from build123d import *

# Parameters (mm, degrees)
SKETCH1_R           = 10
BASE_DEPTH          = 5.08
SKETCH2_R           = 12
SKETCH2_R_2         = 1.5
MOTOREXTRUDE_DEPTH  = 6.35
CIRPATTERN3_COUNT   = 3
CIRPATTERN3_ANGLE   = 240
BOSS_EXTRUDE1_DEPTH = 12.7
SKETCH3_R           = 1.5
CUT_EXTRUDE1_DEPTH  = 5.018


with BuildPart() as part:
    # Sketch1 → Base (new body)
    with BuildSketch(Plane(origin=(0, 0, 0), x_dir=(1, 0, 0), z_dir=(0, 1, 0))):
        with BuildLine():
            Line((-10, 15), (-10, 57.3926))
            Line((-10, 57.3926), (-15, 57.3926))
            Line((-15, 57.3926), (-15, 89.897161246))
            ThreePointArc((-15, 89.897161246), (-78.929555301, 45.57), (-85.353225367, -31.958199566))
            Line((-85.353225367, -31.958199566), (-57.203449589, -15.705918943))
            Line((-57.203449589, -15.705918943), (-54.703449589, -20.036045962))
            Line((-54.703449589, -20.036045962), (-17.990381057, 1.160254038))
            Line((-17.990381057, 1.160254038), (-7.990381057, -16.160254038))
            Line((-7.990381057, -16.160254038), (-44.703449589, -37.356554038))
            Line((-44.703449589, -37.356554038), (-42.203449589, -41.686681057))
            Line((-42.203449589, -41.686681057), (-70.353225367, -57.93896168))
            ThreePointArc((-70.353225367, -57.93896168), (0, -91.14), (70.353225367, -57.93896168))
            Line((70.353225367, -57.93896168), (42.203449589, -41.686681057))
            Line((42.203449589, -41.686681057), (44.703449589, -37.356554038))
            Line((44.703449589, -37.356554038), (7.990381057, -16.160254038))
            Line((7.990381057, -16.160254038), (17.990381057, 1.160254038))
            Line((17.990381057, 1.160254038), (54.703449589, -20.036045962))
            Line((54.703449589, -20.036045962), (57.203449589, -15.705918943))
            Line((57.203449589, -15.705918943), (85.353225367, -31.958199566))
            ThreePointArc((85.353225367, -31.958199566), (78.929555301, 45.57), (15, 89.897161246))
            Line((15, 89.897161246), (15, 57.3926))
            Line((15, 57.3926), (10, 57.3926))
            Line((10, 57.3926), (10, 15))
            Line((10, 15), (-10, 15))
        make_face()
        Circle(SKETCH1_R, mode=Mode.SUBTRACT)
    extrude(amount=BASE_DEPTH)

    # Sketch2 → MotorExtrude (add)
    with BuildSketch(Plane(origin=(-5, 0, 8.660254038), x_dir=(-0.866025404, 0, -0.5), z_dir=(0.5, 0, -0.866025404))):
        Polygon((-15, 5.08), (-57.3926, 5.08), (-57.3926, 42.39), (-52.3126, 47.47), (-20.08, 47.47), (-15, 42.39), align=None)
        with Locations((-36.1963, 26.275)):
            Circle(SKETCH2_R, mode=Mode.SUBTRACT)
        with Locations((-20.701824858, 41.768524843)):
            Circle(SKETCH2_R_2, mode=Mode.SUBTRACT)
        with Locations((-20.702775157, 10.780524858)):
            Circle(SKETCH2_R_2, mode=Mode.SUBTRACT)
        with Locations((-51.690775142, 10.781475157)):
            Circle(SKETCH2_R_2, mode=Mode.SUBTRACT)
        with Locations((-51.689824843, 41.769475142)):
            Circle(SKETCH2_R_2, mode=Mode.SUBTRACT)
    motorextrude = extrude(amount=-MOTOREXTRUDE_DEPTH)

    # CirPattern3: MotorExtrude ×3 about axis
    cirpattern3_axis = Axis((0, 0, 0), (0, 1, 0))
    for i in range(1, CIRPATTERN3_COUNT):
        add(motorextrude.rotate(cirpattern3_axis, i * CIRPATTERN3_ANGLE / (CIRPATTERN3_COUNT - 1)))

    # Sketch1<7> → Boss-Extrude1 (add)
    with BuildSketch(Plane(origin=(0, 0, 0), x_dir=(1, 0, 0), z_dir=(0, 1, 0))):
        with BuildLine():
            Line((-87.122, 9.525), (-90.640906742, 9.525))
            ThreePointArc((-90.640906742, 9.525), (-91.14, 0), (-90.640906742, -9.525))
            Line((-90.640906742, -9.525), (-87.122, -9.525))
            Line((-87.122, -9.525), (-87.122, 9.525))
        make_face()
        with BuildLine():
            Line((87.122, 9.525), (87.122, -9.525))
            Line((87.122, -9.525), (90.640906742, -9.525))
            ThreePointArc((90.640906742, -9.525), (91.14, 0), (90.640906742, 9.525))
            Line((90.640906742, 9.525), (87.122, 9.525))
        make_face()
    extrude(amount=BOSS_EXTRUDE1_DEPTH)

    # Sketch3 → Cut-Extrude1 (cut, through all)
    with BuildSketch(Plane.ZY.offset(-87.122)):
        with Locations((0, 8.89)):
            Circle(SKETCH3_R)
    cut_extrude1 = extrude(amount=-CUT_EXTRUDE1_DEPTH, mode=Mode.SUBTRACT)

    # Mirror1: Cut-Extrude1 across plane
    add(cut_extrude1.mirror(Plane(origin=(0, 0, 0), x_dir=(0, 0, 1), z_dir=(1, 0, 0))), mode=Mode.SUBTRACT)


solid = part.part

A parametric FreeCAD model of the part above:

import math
import FreeCAD as App
import Part
import Sketcher
from FreeCAD import Vector
Q = App.Units.Quantity

doc = App.newDocument("Part")
body = doc.addObject("PartDesign::Body", "Body")

sketch1 = body.newObject("Sketcher::SketchObject", "Sketch")
sketch1.AttachmentSupport = (doc.getObject("XZ_Plane"), [""])
sketch1.MapMode = "FlatFace"
sketch1.addGeometry([
    Part.LineSegment(Vector(-10, -15, 0), Vector(-10, -57, 0)),
    Part.LineSegment(Vector(-10, -57, 0), Vector(-15, -57, 0)),
    Part.LineSegment(Vector(-15, -57, 0), Vector(-15, -90, 0)),
    Part.ArcOfCircle(Part.Circle(Vector(0, 0, 0), Vector(0, 0, 1), 91), math.radians(159), math.radians(261)),
    Part.LineSegment(Vector(-85, 32, 0), Vector(-57, 16, 0)),
    Part.LineSegment(Vector(-57, 16, 0), Vector(-55, 20, 0)),
    Part.LineSegment(Vector(-55, 20, 0), Vector(-18, -1, 0)),
    Part.LineSegment(Vector(-18, -1, 0), Vector(-8, 16, 0)),
    Part.LineSegment(Vector(-8, 16, 0), Vector(-45, 37, 0)),
    Part.LineSegment(Vector(-45, 37, 0), Vector(-42, 42, 0)),
    Part.LineSegment(Vector(-42, 42, 0), Vector(-70, 58, 0)),
    Part.ArcOfCircle(Part.Circle(Vector(0, 0, 0), Vector(0, 0, 1), 91), math.radians(39), math.radians(141)),
    Part.LineSegment(Vector(70, 58, 0), Vector(42, 42, 0)),
    Part.LineSegment(Vector(42, 42, 0), Vector(45, 37, 0)),
    Part.LineSegment(Vector(45, 37, 0), Vector(8, 16, 0)),
    Part.LineSegment(Vector(8, 16, 0), Vector(18, -1, 0)),
    Part.LineSegment(Vector(18, -1, 0), Vector(55, 20, 0)),
    Part.LineSegment(Vector(55, 20, 0), Vector(57, 16, 0)),
    Part.LineSegment(Vector(57, 16, 0), Vector(85, 32, 0)),
    Part.ArcOfCircle(Part.Circle(Vector(0, 0, 0), Vector(0, 0, 1), 91), math.radians(-81), math.radians(21)),
    Part.LineSegment(Vector(15, -90, 0), Vector(15, -57, 0)),
    Part.LineSegment(Vector(15, -57, 0), Vector(10, -57, 0)),
    Part.LineSegment(Vector(10, -57, 0), Vector(10, -15, 0)),
    Part.LineSegment(Vector(10, -15, 0), Vector(-10, -15, 0)),
    Part.Circle(Vector(0, 0, 0), Vector(0, 0, 1), 10),
], False)
sketch1.addConstraint([
    Sketcher.Constraint("Coincident", 0, 2, 1, 1),
    Sketcher.Constraint("Coincident", 1, 2, 2, 1),
    Sketcher.Constraint("Coincident", 2, 2, 3, 2),
    Sketcher.Constraint("Coincident", 3, 1, 4, 1),
    Sketcher.Constraint("Coincident", 4, 2, 5, 1),
    Sketcher.Constraint("Coincident", 5, 2, 6, 1),
    Sketcher.Constraint("Coincident", 6, 2, 7, 1),
    Sketcher.Constraint("Coincident", 7, 2, 8, 1),
    Sketcher.Constraint("Coincident", 8, 2, 9, 1),
    Sketcher.Constraint("Coincident", 9, 2, 10, 1),
    Sketcher.Constraint("Coincident", 10, 2, 11, 2),
    Sketcher.Constraint("Coincident", 11, 1, 12, 1),
    Sketcher.Constraint("Coincident", 12, 2, 13, 1),
    Sketcher.Constraint("Coincident", 13, 2, 14, 1),
    Sketcher.Constraint("Coincident", 14, 2, 15, 1),
    Sketcher.Constraint("Coincident", 15, 2, 16, 1),
    Sketcher.Constraint("Coincident", 16, 2, 17, 1),
    Sketcher.Constraint("Coincident", 17, 2, 18, 1),
    Sketcher.Constraint("Coincident", 18, 2, 19, 2),
    Sketcher.Constraint("Coincident", 19, 1, 20, 1),
    Sketcher.Constraint("Coincident", 20, 2, 21, 1),
    Sketcher.Constraint("Coincident", 21, 2, 22, 1),
    Sketcher.Constraint("Coincident", 22, 2, 23, 1),
    Sketcher.Constraint("Coincident", 23, 2, 0, 1),
    Sketcher.Constraint("Vertical", 0),
    Sketcher.Constraint("Horizontal", 1),
    Sketcher.Constraint("Vertical", 2),
    Sketcher.Constraint("Vertical", 20),
    Sketcher.Constraint("Horizontal", 21),
    Sketcher.Constraint("Vertical", 22),
    Sketcher.Constraint("Horizontal", 23),
    Sketcher.Constraint("Coincident", 3, 3, -1, 1),
    Sketcher.Constraint("Coincident", 11, 3, -1, 1),
    Sketcher.Constraint("Coincident", 19, 3, -1, 1),
    Sketcher.Constraint("Coincident", 24, 3, -1, 1),
    Sketcher.Constraint("Equal", 3, 11),
    Sketcher.Constraint("Equal", 11, 19),
    Sketcher.Constraint("Symmetric", 9, 2, 12, 2, -2),
    Sketcher.Constraint("Symmetric", 8, 2, 13, 2, -2),
    Sketcher.Constraint("Symmetric", 7, 2, 14, 2, -2),
    Sketcher.Constraint("Symmetric", 6, 2, 15, 2, -2),
    Sketcher.Constraint("Symmetric", 5, 2, 16, 2, -2),
    Sketcher.Constraint("Symmetric", 4, 2, 17, 2, -2),
    Sketcher.Constraint("Symmetric", 1, 2, 20, 2, -2),
    Sketcher.Constraint("Perpendicular", 4, 5),
    Sketcher.Constraint("Perpendicular", 5, 6),
    Sketcher.Constraint("Perpendicular", 6, 7),
    Sketcher.Constraint("Perpendicular", 7, 8),
    Sketcher.Constraint("Perpendicular", 8, 9),
    Sketcher.Constraint("Perpendicular", 9, 10),
    Sketcher.Constraint("Perpendicular", 12, 13),
    Sketcher.Constraint("Perpendicular", 17, 18),
    Sketcher.Constraint("Equal", 1, 21),
    Sketcher.Constraint("Equal", 6, 8),
    Sketcher.Constraint("Equal", 5, 9),
    Sketcher.Constraint("Equal", 4, 10),
    Sketcher.Constraint("Angle", 4, Q("-30 deg")),
    Sketcher.Constraint("Diameter", 24, 20.0),
    Sketcher.Constraint("DistanceY", 0, 2, 0, 1, Q("1.669 in")),
    Sketcher.Constraint("Radius", 3, 91.14),
    Sketcher.Constraint("Distance", 6, Q("1.669 in")),
    Sketcher.Constraint("DistanceX", 1, 2, 1, 1, 5.0),
    Sketcher.Constraint("DistanceX", 23, 2, 23, 1, 20.0),
    Sketcher.Constraint("Distance", 5, 5.0),
    Sketcher.Constraint("Distance", 7, 20.0),
    Sketcher.Constraint("DistanceY", 2, 2, 2, 1, 32.504561),
    Sketcher.Constraint("Distance", 4, 32.504561),
])
pad1 = body.newObject("PartDesign::Pad", "Pad")
pad1.Profile = sketch1
pad1.Length = Q("0.2 in")
pad1.Reversed = True

sketch2 = body.newObject("Sketcher::SketchObject", "Sketch001")
sketch2.Placement = App.Placement(Vector(-5, 0, 8.660254), App.Rotation(Vector(-0.866025404, 0, -0.5), Vector(0, 1, 0), Vector(0.5, 0, -0.866025404), "ZXY"))
sketch2.addGeometry([
    Part.LineSegment(Vector(-57.4, 5.1, 0), Vector(-15, 5.1, 0)),
    Part.LineSegment(Vector(-15, 5.1, 0), Vector(-15, 42.4, 0)),
    Part.LineSegment(Vector(-15, 42.4, 0), Vector(-20.1, 47.5, 0)),
    Part.LineSegment(Vector(-20.1, 47.5, 0), Vector(-52.3, 47.5, 0)),
    Part.LineSegment(Vector(-52.3, 47.5, 0), Vector(-57.4, 42.4, 0)),
    Part.LineSegment(Vector(-57.4, 42.4, 0), Vector(-57.4, 5.1, 0)),
    Part.Circle(Vector(-20.7, 10.8, 0), Vector(0, 0, 1), 1.5),
    Part.Circle(Vector(-51.7, 10.8, 0), Vector(0, 0, 1), 1.5),
    Part.Circle(Vector(-20.7, 41.8, 0), Vector(0, 0, 1), 1.5),
    Part.Circle(Vector(-36.2, 26.3, 0), Vector(0, 0, 1), 12),
    Part.Circle(Vector(-51.7, 41.8, 0), Vector(0, 0, 1), 1.5),
], False)
sketch2.addConstraint([
    Sketcher.Constraint("Coincident", 0, 2, 1, 1),
    Sketcher.Constraint("Coincident", 1, 2, 2, 1),
    Sketcher.Constraint("Coincident", 2, 2, 3, 1),
    Sketcher.Constraint("Coincident", 3, 2, 4, 1),
    Sketcher.Constraint("Coincident", 4, 2, 5, 1),
    Sketcher.Constraint("Coincident", 5, 2, 0, 1),
    Sketcher.Constraint("Horizontal", 0),
    Sketcher.Constraint("Vertical", 1),
    Sketcher.Constraint("Horizontal", 3),
    Sketcher.Constraint("Vertical", 5),
    Sketcher.Constraint("Equal", 6, 7),
    Sketcher.Constraint("Equal", 7, 8),
    Sketcher.Constraint("Equal", 8, 10),
    Sketcher.Constraint("Perpendicular", 2, 4),
    Sketcher.Constraint("Horizontal", 1, 2, 4, 2),
    Sketcher.Constraint("Equal", 2, 4),
    Sketcher.Constraint("DistanceY", -1, 1, 0, 2, Q("0.2 in")),
    Sketcher.Constraint("DistanceX", 2, 2, 1, 2, Q("0.2 in")),
    Sketcher.Constraint("Diameter", 6, 3.0),
    Sketcher.Constraint("Diameter", 9, 24.0),
    Sketcher.Constraint("DistanceX", 0, 1, 0, 2, Q("1.669 in")),
    Sketcher.Constraint("DistanceX", 7, 3, 6, 3, Q("1.22 in")),
    Sketcher.Constraint("DistanceY", 6, 3, 8, 3, Q("1.22 in")),
    Sketcher.Constraint("DistanceX", 10, 3, 8, 3, Q("1.22 in")),
    Sketcher.Constraint("DistanceY", 7, 3, 10, 3, Q("1.22 in")),
    Sketcher.Constraint("DistanceY", 1, 1, 1, 2, 37.31),
    Sketcher.Constraint("DistanceX", 9, 3, 0, 2, Q("0.8345 in")),
    Sketcher.Constraint("DistanceX", 9, 3, -1, 1, 36.1963),
    Sketcher.Constraint("DistanceY", -1, 1, 9, 3, 26.275),
    Sketcher.Constraint("DistanceY", 6, 3, 7, 3, 0.00095),
    Sketcher.Constraint("DistanceX", 6, 3, 8, 3, 0.00095),
    Sketcher.Constraint("DistanceX", 6, 3, -1, 1, 20.702775),
    Sketcher.Constraint("DistanceY", -1, 1, 6, 3, 10.780525),
])
pad2 = body.newObject("PartDesign::Pad", "Pad001")
pad2.Profile = sketch2
pad2.Length = Q("0.25 in")
pad2.Reversed = True
doc.recompute()

polarpattern = body.newObject("PartDesign::PolarPattern", "PolarPattern")
polarpattern.Originals = [pad2]
polarpattern.Axis = (doc.getObject("Y_Axis"), [""])
polarpattern.Angle = 360
polarpattern.Occurrences = 3
body.Tip = polarpattern

sketch3 = body.newObject("Sketcher::SketchObject", "Sketch002")
sketch3.AttachmentSupport = (doc.getObject("XZ_Plane"), [""])
sketch3.MapMode = "FlatFace"
sketch3.addGeometry([
    Part.LineSegment(Vector(-87.1, -9.5, 0), Vector(-90.6, -9.5, 0)),
    Part.ArcOfCircle(Part.Circle(Vector(0, 0, 0), Vector(0, 0, 1), 91.1), math.radians(174), math.radians(186)),
    Part.LineSegment(Vector(-90.6, 9.5, 0), Vector(-87.1, 9.5, 0)),
    Part.LineSegment(Vector(-87.1, 9.5, 0), Vector(-87.1, -9.5, 0)),
    Part.LineSegment(Vector(87.1, -9.5, 0), Vector(87.1, 9.5, 0)),
    Part.LineSegment(Vector(87.1, 9.5, 0), Vector(90.6, 9.5, 0)),
    Part.ArcOfCircle(Part.Circle(Vector(0, 0, 0), Vector(0, 0, 1), 91.1), math.radians(-6), math.radians(6)),
    Part.LineSegment(Vector(90.6, -9.5, 0), Vector(87.1, -9.5, 0)),
], False)
sketch3.addConstraint([
    Sketcher.Constraint("Coincident", 0, 2, 1, 2),
    Sketcher.Constraint("Coincident", 1, 1, 2, 1),
    Sketcher.Constraint("Coincident", 2, 2, 3, 1),
    Sketcher.Constraint("Coincident", 3, 2, 0, 1),
    Sketcher.Constraint("Coincident", 4, 2, 5, 1),
    Sketcher.Constraint("Coincident", 5, 2, 6, 2),
    Sketcher.Constraint("Coincident", 6, 1, 7, 1),
    Sketcher.Constraint("Coincident", 7, 2, 4, 1),
    Sketcher.Constraint("Horizontal", 0),
    Sketcher.Constraint("Horizontal", 2),
    Sketcher.Constraint("Vertical", 3),
    Sketcher.Constraint("Vertical", 4),
    Sketcher.Constraint("Horizontal", 5),
    Sketcher.Constraint("Horizontal", 7),
    Sketcher.Constraint("Coincident", 1, 3, -1, 1),
    Sketcher.Constraint("Coincident", 6, 3, -1, 1),
    Sketcher.Constraint("Equal", 1, 6),
    Sketcher.Constraint("Symmetric", 3, 2, 4, 2, -1, 1),
    Sketcher.Constraint("Horizontal", 2, 2, 4, 2),
    Sketcher.Constraint("Horizontal", 3, 2, 6, 1),
    Sketcher.Constraint("DistanceY", 3, 2, 3, 1, Q("0.75 in")),
    Sketcher.Constraint("DistanceX", 2, 2, -1, 1, Q("3.43 in")),
    Sketcher.Constraint("Radius", 1, 91.14),
])
pad3 = body.newObject("PartDesign::Pad", "Pad002")
pad3.Profile = sketch3
pad3.Length = Q("0.5 in")
pad3.Reversed = True

sketch4 = body.newObject("Sketcher::SketchObject", "Sketch003")
sketch4.AttachmentSupport = (doc.getObject("YZ_Plane"), [""])
sketch4.MapMode = "FlatFace"
sketch4.AttachmentOffset = App.Placement(Vector(0, 0, 3.43 * 25.4), App.Rotation())
sketch4.addGeometry(Part.Circle(Vector(8.9, 0, 0), Vector(0, 0, 1), 1.5), False)
sketch4.addConstraint([
    Sketcher.Constraint("PointOnObject", 0, 3, -1),
    Sketcher.Constraint("Diameter", 0, 3.0),
    Sketcher.Constraint("DistanceX", -1, 1, 0, 3, Q("0.35 in")),
])
pocket1 = body.newObject("PartDesign::Pocket", "Pocket")
pocket1.Profile = sketch4
pocket1.Type = "ThroughAll"
pocket1.Reversed = True
doc.recompute()

mirrored = body.newObject("PartDesign::Mirrored", "Mirrored")
mirrored.Originals = [pocket1]
mirrored.MirrorPlane = (doc.getObject("YZ_Plane"), [""])
body.Tip = mirrored

doc.recompute()
